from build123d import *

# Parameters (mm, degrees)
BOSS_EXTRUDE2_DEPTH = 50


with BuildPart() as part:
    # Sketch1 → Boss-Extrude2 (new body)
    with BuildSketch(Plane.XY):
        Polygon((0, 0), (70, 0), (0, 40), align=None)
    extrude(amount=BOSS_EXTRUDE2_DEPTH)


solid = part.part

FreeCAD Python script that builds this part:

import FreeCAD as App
import Part
import Sketcher

doc = App.newDocument("Part")
body = doc.addObject("PartDesign::Body", "Body")

sketch1 = body.newObject("Sketcher::SketchObject", "Sketch")
sketch1.AttachmentSupport = (doc.getObject("XY_Plane"), [""])
sketch1.MapMode = "FlatFace"
sketch1.addGeometry([
    Part.LineSegment(App.Vector(0, 0, 0), App.Vector(70, 0, 0)),
    Part.LineSegment(App.Vector(70, 0, 0), App.Vector(0, 40, 0)),
    Part.LineSegment(App.Vector(0, 40, 0), App.Vector(0, 0, 0)),
], False)
sketch1.addConstraint([
    Sketcher.Constraint("Coincident", 0, 2, 1, 1),
    Sketcher.Constraint("Coincident", 1, 2, 2, 1),
    Sketcher.Constraint("Coincident", 2, 2, 0, 1),
    Sketcher.Constraint("Horizontal", 0),
    Sketcher.Constraint("Vertical", 2),
    Sketcher.Constraint("Coincident", 2, 2, -1, 1),
    Sketcher.Constraint("DistanceX", 0, 1, 0, 2, 70.0),
    Sketcher.Constraint("DistanceY", 2, 2, 2, 1, 40.0),
])
pad1 = body.newObject("PartDesign::Pad", "Pad")
pad1.Profile = sketch1
pad1.Length = 50

doc.recompute()
